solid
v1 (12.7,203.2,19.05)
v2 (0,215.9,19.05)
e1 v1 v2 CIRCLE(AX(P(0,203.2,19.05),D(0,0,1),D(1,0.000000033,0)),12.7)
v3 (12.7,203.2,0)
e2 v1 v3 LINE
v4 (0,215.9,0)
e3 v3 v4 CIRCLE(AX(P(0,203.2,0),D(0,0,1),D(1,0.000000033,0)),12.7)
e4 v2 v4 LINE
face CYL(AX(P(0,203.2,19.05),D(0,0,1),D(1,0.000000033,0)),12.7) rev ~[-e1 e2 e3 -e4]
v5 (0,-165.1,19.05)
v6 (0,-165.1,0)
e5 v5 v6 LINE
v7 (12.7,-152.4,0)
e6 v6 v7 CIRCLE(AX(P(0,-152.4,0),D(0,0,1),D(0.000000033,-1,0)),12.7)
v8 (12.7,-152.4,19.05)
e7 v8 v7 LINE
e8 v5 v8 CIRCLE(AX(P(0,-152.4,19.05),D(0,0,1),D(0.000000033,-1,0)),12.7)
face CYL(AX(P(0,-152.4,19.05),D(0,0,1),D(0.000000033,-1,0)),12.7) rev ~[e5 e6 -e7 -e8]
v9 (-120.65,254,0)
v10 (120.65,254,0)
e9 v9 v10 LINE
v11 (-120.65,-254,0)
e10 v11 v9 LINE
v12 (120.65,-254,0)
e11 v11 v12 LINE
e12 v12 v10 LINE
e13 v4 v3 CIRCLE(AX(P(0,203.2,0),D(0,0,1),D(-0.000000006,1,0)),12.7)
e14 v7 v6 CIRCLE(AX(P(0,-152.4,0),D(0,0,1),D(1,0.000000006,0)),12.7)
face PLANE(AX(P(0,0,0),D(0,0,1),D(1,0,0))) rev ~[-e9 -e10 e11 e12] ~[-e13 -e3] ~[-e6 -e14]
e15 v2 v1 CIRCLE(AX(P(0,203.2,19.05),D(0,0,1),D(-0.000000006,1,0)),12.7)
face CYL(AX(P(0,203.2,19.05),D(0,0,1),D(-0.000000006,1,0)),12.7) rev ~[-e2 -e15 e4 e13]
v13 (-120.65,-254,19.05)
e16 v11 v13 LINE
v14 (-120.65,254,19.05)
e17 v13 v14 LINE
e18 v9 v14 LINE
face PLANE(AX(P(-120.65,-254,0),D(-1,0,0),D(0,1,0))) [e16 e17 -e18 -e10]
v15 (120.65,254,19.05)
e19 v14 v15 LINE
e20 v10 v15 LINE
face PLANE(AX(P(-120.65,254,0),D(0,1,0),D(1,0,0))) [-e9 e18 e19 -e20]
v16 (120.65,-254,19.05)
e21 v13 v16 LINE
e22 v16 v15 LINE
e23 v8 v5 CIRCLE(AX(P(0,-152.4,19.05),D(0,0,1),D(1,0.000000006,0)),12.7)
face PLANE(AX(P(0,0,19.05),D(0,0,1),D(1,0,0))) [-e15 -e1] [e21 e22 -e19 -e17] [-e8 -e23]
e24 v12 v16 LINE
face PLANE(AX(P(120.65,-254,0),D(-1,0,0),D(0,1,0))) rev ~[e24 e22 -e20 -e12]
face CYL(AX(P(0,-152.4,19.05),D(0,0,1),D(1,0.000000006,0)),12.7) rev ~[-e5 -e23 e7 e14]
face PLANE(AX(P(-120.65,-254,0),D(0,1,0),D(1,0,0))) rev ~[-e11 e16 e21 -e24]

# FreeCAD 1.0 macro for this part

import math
import FreeCAD as App
import Part
import Sketcher
Q = App.Units.Quantity


def add_polygon(sketch, points):
    """Adds a closed chain of lines whose ends are joined by coincident constraints."""
    first, n = sketch.GeometryCount, len(points)
    for a, b in zip(points, points[1:] + points[:1]):
        sketch.addGeometry(Part.LineSegment(App.Vector(*a, 0), App.Vector(*b, 0)), False)
    for i in range(n):
        sketch.addConstraint(Sketcher.Constraint("Coincident", first + i, 2, first + (i + 1) % n, 1))

doc = App.newDocument("Part")
body = doc.addObject("PartDesign::Body", "Body")

# Sketch on XY plane
sketch1 = body.newObject("Sketcher::SketchObject", "Sketch")
sketch1.AttachmentSupport = (doc.getObject("XY_Plane"), [""])
sketch1.MapMode = "FlatFace"
add_polygon(sketch1, [(-121, 254), (-121, -254), (121, -254), (121, 254)])  # lines 0-3
sketch1.addConstraint([
    Sketcher.Constraint("Vertical", 0),
    Sketcher.Constraint("Horizontal", 1),
    Sketcher.Constraint("Vertical", 2),
    Sketcher.Constraint("Horizontal", 3),
    Sketcher.Constraint("Symmetric", 0, 2, 2, 2, -1, 1),
    Sketcher.Constraint("DistanceY", 0, 2, 0, 1, Q("20 in")),
    Sketcher.Constraint("DistanceX", 1, 1, 1, 2, Q("9.5 in")),
])
pad1 = body.newObject("PartDesign::Pad", "Pad")
pad1.Profile = sketch1
pad1.Length = Q("0.75 in")

# Sketch on XY plane
sketch2 = body.newObject("Sketcher::SketchObject", "Sketch001")
sketch2.AttachmentSupport = (doc.getObject("XY_Plane"), [""])
sketch2.MapMode = "FlatFace"
sketch2.AttachmentOffset = App.Placement(App.Vector(0, 0, 0.75 * 25.4), App.Rotation())
sketch2.addGeometry([
    Part.ArcOfCircle(Part.Circle(App.Vector(0, 203, 0), App.Vector(0, 0, 1), 13), math.radians(0), math.radians(90)),
    Part.ArcOfCircle(Part.Circle(App.Vector(0, 203, 0), App.Vector(0, 0, 1), 13), math.radians(90), math.radians(360)),
    Part.ArcOfCircle(Part.Circle(App.Vector(0, -152, 0), App.Vector(0, 0, 1), 13), math.radians(0), math.radians(270)),
    Part.ArcOfCircle(Part.Circle(App.Vector(0, -152, 0), App.Vector(0, 0, 1), 13), math.radians(-90), math.radians(0)),
], False)
sketch2.addConstraint([
    Sketcher.Constraint("Tangent", 0, 1, 1, 2),
    Sketcher.Constraint("Coincident", 1, 1, 0, 2),
    Sketcher.Constraint("Tangent", 2, 1, 3, 2),
    Sketcher.Constraint("Coincident", 3, 1, 2, 2),
    Sketcher.Constraint("Equal", 1, 2),
    Sketcher.Constraint("PointOnObject", 0, 3, -2),
    Sketcher.Constraint("PointOnObject", 2, 3, -2),
    Sketcher.Constraint("PointOnObject", 1, 1, -2),
    Sketcher.Constraint("PointOnObject", 3, 1, -2),
    Sketcher.Constraint("Horizontal", 1, 3, 0, 1),
    Sketcher.Constraint("Horizontal", 3, 3, 2, 1),
    Sketcher.Constraint("Radius", 0, Q("0.5 in")),
    Sketcher.Constraint("DistanceY", -1, 1, 0, 3, Q("8 in")),
    Sketcher.Constraint("DistanceY", 2, 3, -1, 1, Q("6 in")),
])
pocket1 = body.newObject("PartDesign::Pocket", "Pocket")
pocket1.Profile = sketch2
pocket1.Type = "ThroughAll"

doc.recompute()
